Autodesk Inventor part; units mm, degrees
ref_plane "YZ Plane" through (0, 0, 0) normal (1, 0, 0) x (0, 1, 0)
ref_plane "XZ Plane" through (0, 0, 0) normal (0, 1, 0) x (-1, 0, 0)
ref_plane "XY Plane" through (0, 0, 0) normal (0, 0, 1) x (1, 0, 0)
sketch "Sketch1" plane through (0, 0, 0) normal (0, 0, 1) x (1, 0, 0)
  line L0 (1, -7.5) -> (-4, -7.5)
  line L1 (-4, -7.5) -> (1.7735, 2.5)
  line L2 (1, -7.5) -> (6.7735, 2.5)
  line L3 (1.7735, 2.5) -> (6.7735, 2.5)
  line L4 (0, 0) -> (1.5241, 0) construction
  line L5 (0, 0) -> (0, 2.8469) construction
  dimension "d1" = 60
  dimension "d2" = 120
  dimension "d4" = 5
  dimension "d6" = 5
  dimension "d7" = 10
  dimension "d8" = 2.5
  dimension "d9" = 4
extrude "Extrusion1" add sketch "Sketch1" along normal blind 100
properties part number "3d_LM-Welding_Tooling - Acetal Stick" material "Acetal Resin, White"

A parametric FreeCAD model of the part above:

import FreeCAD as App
import Part
import Sketcher
from FreeCAD import Vector
Q = App.Units.Quantity

doc = App.newDocument("Part")
body = doc.addObject("PartDesign::Body", "Body")

# Sketch on XY plane
sketch1 = doc.addObject("Sketcher::SketchObject", "Sketch")
body.addObject(sketch1)
sketch1.AttachmentSupport = (doc.XY_Plane, [""])
sketch1.MapMode = "FlatFace"
sketch1.addGeometry(Part.LineSegment(Vector(-4, -8, 0), Vector(1, -8, 0)), False)
sketch1.addGeometry(Part.LineSegment(Vector(1, -8, 0), Vector(7, 2, 0)), False)
sketch1.addGeometry(Part.LineSegment(Vector(7, 2, 0), Vector(2, 2, 0)), False)
sketch1.addGeometry(Part.LineSegment(Vector(2, 2, 0), Vector(-4, -8, 0)), False)
sketch1.addConstraint(Sketcher.Constraint("Coincident", 0, 2, 1, 1))
sketch1.addConstraint(Sketcher.Constraint("Coincident", 1, 2, 2, 1))
sketch1.addConstraint(Sketcher.Constraint("Coincident", 2, 2, 3, 1))
sketch1.addConstraint(Sketcher.Constraint("Coincident", 3, 2, 0, 1))
sketch1.addConstraint(Sketcher.Constraint("Horizontal", 0))
sketch1.addConstraint(Sketcher.Constraint("Horizontal", 2))
sketch1.addConstraint(Sketcher.Constraint("Parallel", 1, 3))
sketch1.addConstraint(Sketcher.Constraint("DistanceX", 0, 1, 0, 2, 5.0))
sketch1.addConstraint(Sketcher.Constraint("Angle", 1, Q("60 deg")))
sketch1.addConstraint(Sketcher.Constraint("DistanceX", 3, 2, -1, 1, 4.0))
sketch1.addConstraint(Sketcher.Constraint("DistanceY", 0, 2, 1, 2, 10.0))
sketch1.addConstraint(Sketcher.Constraint("DistanceY", -1, 1, 1, 2, 2.5))
pad1 = doc.addObject("PartDesign::Pad", "Pad")
body.addObject(pad1)
pad1.Profile = sketch1
pad1.Length = 100

doc.recompute()
